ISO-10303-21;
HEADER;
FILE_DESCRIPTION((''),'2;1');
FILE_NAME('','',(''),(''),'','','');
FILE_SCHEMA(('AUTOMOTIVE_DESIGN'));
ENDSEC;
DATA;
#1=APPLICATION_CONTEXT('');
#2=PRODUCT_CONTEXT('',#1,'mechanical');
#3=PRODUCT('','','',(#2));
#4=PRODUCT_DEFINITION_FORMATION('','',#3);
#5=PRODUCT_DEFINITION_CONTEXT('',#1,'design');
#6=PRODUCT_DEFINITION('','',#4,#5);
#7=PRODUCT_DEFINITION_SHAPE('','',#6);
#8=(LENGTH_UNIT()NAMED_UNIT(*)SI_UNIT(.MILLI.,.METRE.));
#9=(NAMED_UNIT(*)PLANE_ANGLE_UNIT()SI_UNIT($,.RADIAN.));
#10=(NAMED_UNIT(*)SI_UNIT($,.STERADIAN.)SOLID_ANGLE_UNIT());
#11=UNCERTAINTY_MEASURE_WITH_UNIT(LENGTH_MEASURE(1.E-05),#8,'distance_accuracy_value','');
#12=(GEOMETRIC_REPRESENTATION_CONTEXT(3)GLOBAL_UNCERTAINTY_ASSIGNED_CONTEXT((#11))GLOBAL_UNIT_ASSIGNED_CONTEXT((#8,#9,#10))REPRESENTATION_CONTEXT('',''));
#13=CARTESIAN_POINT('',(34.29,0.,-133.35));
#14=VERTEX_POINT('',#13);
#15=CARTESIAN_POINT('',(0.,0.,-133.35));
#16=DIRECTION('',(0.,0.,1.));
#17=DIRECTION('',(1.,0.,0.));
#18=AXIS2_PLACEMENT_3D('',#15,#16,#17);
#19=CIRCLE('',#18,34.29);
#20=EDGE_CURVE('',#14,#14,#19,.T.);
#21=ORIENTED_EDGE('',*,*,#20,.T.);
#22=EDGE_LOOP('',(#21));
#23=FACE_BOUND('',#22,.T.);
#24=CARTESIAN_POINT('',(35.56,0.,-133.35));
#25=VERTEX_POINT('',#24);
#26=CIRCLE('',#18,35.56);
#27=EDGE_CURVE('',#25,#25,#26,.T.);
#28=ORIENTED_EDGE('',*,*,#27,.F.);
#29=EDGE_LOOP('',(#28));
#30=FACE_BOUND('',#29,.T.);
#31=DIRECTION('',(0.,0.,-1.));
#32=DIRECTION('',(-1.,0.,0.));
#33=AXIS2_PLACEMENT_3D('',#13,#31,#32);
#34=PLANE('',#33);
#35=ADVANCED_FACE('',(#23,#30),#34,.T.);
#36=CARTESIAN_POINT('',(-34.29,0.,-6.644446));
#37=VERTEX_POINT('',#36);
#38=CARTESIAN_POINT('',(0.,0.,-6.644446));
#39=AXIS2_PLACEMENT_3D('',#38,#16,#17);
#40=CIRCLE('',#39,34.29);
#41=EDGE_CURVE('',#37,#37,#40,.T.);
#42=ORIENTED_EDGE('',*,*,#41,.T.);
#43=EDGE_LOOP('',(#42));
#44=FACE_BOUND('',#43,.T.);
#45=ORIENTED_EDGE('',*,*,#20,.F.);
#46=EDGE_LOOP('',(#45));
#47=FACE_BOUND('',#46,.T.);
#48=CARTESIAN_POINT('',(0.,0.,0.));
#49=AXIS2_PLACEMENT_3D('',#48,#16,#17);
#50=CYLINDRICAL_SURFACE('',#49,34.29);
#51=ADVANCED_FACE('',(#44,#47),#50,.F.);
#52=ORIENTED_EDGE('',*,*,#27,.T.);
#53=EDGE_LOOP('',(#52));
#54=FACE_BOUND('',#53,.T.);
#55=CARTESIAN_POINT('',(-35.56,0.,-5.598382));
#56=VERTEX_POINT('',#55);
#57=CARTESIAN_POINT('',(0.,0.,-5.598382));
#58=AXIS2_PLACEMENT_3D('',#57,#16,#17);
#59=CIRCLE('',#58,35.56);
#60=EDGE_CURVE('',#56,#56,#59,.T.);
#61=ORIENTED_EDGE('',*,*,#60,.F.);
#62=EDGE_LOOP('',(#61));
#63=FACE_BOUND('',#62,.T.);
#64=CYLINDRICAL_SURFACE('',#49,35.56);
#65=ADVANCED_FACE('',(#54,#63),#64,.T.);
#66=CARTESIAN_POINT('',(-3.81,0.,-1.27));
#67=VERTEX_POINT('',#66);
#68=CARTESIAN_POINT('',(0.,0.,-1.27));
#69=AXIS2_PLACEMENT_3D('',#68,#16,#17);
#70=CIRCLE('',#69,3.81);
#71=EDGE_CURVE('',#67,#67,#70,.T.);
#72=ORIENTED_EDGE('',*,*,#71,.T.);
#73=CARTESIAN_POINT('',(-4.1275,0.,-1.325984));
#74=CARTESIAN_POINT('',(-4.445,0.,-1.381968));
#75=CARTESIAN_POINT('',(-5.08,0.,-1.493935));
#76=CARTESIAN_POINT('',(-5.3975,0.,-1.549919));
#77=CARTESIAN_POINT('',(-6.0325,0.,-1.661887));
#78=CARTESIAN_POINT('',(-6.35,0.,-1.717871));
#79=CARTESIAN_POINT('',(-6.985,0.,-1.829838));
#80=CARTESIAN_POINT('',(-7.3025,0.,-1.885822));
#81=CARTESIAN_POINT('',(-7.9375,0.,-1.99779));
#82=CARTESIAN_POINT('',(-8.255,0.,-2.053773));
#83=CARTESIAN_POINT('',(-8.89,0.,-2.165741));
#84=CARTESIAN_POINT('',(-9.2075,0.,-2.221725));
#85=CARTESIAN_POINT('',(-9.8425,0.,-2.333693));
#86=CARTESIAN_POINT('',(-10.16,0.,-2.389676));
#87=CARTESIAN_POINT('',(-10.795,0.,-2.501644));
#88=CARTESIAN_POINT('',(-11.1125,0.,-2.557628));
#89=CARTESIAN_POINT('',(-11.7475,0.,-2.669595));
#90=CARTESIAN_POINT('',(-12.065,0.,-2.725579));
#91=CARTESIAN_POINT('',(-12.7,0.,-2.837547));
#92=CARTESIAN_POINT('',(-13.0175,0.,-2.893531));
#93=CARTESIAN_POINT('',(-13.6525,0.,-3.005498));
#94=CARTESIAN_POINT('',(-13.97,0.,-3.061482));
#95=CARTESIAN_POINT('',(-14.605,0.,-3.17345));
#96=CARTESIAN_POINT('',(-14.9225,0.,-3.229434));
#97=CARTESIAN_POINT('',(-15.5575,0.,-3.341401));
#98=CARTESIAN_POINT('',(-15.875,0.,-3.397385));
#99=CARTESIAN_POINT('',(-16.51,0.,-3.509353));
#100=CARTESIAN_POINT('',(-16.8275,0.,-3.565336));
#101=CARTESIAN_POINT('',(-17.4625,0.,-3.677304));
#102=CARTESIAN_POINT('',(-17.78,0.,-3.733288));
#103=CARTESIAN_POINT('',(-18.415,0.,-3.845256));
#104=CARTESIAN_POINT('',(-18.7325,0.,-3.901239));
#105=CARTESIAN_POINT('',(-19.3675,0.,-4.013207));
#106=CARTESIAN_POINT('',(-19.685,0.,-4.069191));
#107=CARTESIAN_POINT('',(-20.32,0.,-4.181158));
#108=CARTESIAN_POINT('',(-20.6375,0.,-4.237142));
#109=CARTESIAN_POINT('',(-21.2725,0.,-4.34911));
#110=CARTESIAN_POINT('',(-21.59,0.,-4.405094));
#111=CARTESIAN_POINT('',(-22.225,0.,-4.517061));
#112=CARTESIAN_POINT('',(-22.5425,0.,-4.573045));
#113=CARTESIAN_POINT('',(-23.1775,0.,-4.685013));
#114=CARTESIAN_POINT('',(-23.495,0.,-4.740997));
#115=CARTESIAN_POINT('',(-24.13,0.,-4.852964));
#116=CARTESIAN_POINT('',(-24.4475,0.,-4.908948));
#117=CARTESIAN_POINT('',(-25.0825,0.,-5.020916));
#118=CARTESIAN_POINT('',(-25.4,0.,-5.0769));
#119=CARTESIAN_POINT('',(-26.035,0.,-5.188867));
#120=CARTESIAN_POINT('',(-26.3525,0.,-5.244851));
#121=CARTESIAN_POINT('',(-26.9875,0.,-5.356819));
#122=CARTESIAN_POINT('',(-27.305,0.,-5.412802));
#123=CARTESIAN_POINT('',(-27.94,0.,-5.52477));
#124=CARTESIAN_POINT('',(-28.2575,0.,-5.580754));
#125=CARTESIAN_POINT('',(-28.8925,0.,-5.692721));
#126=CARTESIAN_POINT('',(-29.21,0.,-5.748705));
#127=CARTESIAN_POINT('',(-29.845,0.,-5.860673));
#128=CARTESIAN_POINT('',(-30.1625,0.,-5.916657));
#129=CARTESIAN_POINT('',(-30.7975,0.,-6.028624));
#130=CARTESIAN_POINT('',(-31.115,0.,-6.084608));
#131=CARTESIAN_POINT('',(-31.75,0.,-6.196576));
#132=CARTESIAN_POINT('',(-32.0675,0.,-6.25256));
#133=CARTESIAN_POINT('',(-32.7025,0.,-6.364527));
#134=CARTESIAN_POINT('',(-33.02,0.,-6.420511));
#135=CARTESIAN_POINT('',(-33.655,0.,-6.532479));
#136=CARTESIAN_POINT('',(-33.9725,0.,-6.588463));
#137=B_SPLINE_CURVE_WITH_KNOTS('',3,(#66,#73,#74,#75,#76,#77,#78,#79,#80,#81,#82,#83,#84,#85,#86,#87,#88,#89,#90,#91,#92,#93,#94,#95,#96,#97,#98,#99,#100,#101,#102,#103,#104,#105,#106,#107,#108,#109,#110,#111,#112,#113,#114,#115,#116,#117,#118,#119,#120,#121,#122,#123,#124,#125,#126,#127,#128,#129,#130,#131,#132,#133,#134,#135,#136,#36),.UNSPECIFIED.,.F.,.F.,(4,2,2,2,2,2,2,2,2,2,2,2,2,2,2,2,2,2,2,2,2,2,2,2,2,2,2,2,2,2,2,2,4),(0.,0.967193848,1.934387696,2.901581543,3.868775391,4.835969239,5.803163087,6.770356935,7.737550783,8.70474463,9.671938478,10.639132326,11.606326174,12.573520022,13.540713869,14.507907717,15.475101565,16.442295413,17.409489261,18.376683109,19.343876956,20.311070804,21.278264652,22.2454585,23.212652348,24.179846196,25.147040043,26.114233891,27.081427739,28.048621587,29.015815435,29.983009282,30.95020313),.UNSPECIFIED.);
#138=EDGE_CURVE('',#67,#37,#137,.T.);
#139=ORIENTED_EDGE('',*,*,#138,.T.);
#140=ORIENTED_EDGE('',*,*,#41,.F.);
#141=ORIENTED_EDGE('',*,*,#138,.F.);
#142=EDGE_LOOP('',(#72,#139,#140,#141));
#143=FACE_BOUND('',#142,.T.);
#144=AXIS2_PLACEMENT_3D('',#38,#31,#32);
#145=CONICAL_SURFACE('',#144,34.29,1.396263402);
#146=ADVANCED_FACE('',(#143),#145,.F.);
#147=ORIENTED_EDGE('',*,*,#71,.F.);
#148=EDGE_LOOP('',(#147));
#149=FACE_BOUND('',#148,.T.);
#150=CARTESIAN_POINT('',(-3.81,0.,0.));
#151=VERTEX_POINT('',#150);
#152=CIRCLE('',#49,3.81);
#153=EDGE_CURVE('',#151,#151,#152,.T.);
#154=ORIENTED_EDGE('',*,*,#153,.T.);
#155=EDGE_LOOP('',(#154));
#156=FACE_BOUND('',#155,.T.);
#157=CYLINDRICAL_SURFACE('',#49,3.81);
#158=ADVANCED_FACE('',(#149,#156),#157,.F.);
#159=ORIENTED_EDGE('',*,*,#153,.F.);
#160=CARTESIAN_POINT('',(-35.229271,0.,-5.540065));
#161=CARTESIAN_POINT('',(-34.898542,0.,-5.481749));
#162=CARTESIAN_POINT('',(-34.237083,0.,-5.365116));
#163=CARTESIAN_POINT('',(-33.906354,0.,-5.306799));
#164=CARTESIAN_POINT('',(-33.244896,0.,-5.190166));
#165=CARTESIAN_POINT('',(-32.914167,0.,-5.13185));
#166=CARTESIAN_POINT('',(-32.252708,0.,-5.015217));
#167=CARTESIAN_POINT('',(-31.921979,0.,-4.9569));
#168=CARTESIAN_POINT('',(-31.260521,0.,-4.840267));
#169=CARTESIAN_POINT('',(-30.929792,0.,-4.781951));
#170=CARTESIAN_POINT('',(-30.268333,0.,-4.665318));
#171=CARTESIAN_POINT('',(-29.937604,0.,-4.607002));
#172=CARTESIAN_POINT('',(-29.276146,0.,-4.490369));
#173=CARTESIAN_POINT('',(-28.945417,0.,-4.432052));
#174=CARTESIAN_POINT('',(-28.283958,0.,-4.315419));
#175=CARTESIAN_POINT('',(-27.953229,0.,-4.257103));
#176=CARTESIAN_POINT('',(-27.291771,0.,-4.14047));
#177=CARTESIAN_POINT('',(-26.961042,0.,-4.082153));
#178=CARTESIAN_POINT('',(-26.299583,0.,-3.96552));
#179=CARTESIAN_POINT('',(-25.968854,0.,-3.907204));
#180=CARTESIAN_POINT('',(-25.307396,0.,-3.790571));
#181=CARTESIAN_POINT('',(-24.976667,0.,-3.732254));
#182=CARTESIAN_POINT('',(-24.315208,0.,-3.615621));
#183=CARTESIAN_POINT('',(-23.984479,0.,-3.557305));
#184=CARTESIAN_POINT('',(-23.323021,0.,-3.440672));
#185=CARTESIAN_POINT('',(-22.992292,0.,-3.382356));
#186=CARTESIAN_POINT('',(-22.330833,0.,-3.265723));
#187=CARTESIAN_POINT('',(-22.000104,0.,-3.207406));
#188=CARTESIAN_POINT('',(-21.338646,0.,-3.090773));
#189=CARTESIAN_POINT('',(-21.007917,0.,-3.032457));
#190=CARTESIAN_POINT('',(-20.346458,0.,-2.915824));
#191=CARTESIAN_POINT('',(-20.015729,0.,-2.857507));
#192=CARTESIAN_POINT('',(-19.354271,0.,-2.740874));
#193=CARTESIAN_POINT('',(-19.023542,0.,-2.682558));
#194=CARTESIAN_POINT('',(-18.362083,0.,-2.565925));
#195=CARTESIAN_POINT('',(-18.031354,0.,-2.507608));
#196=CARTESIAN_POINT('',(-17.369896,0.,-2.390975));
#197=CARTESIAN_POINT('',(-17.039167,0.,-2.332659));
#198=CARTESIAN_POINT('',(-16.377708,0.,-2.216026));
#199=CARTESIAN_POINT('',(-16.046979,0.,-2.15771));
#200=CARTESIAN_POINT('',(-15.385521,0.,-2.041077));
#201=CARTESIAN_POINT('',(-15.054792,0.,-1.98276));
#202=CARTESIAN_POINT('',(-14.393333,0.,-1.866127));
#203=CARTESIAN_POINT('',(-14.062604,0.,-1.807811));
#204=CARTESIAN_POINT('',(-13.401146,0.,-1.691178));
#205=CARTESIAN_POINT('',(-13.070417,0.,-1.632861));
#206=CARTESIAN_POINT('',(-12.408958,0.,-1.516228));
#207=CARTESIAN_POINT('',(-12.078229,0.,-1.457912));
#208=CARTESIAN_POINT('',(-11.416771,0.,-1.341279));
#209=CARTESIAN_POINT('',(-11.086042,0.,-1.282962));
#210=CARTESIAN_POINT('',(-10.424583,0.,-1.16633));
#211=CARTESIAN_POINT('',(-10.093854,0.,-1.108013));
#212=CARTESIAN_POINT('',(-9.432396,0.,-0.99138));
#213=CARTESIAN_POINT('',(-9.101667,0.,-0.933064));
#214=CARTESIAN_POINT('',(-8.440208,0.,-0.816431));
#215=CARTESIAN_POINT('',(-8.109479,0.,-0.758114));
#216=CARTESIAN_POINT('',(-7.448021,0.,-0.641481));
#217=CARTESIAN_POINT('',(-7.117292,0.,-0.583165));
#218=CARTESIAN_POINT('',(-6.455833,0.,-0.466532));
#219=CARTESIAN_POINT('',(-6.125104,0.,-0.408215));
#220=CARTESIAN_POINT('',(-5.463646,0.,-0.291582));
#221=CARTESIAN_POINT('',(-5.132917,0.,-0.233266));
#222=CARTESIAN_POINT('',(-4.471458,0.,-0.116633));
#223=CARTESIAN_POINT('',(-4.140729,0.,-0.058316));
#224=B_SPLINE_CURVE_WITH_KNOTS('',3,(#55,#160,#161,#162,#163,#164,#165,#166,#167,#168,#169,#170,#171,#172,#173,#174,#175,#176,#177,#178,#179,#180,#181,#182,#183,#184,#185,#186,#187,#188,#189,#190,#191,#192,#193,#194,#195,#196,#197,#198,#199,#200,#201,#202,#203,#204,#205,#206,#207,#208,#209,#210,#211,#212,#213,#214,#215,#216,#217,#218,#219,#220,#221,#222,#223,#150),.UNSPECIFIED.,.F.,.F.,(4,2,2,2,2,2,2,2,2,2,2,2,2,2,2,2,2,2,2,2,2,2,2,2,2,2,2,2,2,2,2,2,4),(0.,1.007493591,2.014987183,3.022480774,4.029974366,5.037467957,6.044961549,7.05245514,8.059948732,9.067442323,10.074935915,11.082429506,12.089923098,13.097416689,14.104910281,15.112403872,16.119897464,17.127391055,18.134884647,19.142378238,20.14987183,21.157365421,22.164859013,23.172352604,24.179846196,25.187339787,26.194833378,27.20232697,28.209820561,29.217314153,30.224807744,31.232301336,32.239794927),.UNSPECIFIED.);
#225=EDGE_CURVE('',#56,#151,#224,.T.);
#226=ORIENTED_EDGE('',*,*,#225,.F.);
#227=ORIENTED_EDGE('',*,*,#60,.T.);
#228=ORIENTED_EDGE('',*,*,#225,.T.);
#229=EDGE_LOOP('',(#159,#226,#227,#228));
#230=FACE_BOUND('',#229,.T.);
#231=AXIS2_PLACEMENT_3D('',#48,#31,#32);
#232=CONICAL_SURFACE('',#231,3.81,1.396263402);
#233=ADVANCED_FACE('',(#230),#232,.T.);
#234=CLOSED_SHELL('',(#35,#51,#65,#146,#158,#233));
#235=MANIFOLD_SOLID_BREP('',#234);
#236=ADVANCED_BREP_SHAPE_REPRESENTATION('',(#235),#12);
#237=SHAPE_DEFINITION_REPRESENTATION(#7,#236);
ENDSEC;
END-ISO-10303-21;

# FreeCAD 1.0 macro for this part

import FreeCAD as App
import Part
import Sketcher

V = App.Vector
Q = App.Units.Quantity


def add_polygon(sketch, points):
    """Adds a closed chain of lines whose ends are joined by coincident constraints."""
    first, n = sketch.GeometryCount, len(points)
    for a, b in zip(points, points[1:] + points[:1]):
        sketch.addGeometry(Part.LineSegment(App.Vector(*a, 0), App.Vector(*b, 0)), False)
    for i in range(n):
        sketch.addConstraint(Sketcher.Constraint("Coincident", first + i, 2, first + (i + 1) % n, 1))

doc = App.newDocument("Part")
body = doc.addObject("PartDesign::Body", "Body")

sketch1 = body.newObject("Sketcher::SketchObject", "Sketch")
sketch1.AttachmentSupport = (doc.getObject("XZ_Plane"), [""])
sketch1.MapMode = "FlatFace"
add_polygon(sketch1, [(3.8, 0), (35.6, -5.6), (35.6, -133.3), (34.3, -133.3), (34.3, -6.6), (3.8, -1.3)])
sketch1.addConstraint(Sketcher.Constraint("Vertical", 1))
sketch1.addConstraint(Sketcher.Constraint("Horizontal", 2))
sketch1.addConstraint(Sketcher.Constraint("Vertical", 3))
sketch1.addConstraint(Sketcher.Constraint("Vertical", 5))
sketch1.addConstraint(Sketcher.Constraint("PointOnObject", 5, 2, -1))
sketch1.addConstraint(Sketcher.Constraint("Parallel", 0, 4))
sketch1.addConstraint(Sketcher.Constraint("Equal", 2, 5))
sketch1.addConstraint(Sketcher.Constraint("Angle", 0, Q("-10 deg")))
sketch1.addConstraint(Sketcher.Constraint("DistanceX", 2, 2, 2, 1, Q("0.05 in")))
sketch1.addConstraint(Sketcher.Constraint("DistanceX", -1, 1, 0, 2, Q("1.4 in")))
sketch1.addConstraint(Sketcher.Constraint("DistanceX", 4, 2, 3, 2, Q("1.2 in")))
sketch1.addConstraint(Sketcher.Constraint("DistanceY", 2, 2, 4, 2, Q("5.2 in")))
revolution = body.newObject("PartDesign::Revolution", "Revolution")
revolution.Profile = sketch1
revolution.ReferenceAxis = (sketch1, ["V_Axis"])
revolution.Angle = 360

doc.recompute()
